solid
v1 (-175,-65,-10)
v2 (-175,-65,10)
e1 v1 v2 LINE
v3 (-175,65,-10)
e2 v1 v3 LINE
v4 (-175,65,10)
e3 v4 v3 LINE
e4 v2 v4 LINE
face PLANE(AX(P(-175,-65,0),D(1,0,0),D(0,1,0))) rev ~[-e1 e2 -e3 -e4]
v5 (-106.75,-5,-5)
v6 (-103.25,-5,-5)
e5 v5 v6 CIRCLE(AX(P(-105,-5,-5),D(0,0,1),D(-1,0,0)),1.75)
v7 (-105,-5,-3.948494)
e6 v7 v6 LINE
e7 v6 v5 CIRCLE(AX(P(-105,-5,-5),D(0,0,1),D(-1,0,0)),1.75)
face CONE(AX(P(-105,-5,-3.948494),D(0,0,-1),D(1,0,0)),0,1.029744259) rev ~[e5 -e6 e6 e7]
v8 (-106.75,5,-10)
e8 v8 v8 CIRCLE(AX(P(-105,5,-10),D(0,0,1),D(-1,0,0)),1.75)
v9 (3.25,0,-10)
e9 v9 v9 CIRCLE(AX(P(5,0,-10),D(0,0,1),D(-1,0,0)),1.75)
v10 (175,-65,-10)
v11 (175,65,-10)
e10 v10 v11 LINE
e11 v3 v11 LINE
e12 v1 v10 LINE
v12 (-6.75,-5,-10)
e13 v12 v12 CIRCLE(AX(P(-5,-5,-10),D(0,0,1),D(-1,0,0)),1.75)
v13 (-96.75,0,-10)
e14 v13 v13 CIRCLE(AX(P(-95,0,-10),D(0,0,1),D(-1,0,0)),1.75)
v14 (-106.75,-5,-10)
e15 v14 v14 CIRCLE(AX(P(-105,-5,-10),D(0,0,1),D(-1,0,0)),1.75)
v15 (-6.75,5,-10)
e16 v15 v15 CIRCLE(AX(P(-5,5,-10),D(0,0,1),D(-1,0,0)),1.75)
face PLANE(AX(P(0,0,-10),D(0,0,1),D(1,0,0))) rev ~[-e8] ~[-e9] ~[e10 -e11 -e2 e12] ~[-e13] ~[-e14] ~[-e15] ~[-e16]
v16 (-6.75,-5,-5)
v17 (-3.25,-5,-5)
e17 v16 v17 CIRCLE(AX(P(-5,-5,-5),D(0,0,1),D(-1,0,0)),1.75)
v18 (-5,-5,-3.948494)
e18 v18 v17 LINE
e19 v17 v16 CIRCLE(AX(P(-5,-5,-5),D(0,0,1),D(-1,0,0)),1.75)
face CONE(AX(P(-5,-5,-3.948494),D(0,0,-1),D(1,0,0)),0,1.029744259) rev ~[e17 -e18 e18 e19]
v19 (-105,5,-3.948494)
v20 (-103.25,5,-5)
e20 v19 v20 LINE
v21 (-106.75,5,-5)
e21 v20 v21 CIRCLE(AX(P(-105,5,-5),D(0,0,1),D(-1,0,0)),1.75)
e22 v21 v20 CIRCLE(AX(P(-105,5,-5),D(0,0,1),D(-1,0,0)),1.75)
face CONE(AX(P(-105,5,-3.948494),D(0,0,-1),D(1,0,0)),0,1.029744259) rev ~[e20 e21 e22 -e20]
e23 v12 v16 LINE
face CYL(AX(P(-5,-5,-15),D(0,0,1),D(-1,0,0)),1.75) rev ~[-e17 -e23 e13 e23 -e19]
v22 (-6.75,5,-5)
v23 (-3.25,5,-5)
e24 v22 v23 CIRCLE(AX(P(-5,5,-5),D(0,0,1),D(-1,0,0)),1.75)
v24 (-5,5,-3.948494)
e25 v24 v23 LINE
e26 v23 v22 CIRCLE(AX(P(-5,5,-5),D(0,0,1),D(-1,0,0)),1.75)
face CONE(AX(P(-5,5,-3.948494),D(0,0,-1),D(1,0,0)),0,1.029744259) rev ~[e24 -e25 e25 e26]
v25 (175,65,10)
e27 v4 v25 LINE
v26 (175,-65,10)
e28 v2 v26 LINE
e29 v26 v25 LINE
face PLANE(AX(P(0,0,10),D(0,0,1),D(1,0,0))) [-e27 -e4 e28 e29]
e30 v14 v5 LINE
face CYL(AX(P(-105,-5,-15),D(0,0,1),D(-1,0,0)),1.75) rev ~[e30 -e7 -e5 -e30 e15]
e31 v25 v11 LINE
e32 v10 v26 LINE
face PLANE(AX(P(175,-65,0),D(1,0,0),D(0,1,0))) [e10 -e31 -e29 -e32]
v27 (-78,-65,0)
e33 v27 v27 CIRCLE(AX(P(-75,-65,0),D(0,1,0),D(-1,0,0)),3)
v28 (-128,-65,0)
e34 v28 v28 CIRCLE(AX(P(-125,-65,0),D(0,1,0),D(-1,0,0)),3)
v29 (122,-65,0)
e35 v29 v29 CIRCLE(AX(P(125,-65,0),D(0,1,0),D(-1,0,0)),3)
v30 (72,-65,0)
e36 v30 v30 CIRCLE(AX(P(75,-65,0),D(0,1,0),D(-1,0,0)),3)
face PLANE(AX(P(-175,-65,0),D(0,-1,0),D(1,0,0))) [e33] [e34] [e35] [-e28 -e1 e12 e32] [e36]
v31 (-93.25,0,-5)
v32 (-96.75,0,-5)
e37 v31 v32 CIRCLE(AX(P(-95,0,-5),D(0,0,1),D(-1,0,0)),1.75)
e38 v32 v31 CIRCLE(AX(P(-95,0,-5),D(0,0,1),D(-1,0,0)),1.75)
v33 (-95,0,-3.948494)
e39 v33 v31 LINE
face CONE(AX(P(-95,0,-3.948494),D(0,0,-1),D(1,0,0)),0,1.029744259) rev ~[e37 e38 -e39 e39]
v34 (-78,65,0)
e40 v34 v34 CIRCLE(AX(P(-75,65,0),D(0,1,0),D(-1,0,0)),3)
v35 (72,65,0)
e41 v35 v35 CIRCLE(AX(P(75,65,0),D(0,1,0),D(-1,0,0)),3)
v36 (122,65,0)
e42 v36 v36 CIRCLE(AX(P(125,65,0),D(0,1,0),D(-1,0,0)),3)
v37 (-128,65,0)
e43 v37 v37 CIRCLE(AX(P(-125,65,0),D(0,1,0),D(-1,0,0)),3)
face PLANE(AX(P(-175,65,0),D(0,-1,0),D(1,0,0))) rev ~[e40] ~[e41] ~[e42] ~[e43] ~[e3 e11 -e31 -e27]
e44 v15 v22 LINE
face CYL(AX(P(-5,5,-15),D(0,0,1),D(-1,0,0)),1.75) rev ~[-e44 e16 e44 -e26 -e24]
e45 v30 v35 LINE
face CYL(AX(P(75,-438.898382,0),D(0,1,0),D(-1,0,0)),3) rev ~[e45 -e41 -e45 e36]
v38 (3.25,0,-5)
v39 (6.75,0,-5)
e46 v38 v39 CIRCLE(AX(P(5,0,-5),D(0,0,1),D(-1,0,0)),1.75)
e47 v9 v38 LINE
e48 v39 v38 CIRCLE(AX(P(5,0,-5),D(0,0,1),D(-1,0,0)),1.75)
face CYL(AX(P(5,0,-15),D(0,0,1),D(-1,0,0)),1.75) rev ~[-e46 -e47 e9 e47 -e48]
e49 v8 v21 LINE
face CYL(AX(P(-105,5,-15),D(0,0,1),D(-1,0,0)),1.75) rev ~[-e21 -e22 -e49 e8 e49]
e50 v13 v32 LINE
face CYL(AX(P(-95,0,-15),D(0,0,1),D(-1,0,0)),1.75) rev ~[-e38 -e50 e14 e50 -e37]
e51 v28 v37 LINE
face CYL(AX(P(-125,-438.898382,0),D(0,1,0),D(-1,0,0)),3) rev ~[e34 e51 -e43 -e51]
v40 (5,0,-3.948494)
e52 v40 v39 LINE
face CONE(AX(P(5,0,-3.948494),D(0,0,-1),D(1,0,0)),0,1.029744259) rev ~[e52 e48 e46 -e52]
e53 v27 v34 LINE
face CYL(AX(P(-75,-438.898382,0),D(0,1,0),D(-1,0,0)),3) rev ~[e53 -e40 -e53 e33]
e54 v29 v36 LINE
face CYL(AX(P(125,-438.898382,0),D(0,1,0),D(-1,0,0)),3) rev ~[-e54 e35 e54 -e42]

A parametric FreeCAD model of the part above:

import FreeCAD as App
import Part
import Sketcher


def add_polygon(sketch, points):
    """Adds a closed chain of lines whose ends are joined by coincident constraints."""
    first, n = sketch.GeometryCount, len(points)
    for a, b in zip(points, points[1:] + points[:1]):
        sketch.addGeometry(Part.LineSegment(App.Vector(*a, 0), App.Vector(*b, 0)), False)
    for i in range(n):
        sketch.addConstraint(Sketcher.Constraint("Coincident", first + i, 2, first + (i + 1) % n, 1))

doc = App.newDocument("Part")
body = doc.addObject("PartDesign::Body", "Body")

sketch1 = body.newObject("Sketcher::SketchObject", "Sketch")
sketch1.AttachmentSupport = (doc.getObject("XY_Plane"), [""])
sketch1.MapMode = "FlatFace"
add_polygon(sketch1, [(-175, 65), (-175, -65), (175, -65), (175, 65)])
sketch1.addConstraint([
    Sketcher.Constraint("Vertical", 0),
    Sketcher.Constraint("Horizontal", 1),
    Sketcher.Constraint("Vertical", 2),
    Sketcher.Constraint("Horizontal", 3),
    Sketcher.Constraint("Symmetric", 0, 2, 2, 2, -1, 1),
    Sketcher.Constraint("DistanceX", 1, 1, 1, 2, 350.0),
    Sketcher.Constraint("DistanceY", 0, 2, 0, 1, 130.0),
])
pad1 = body.newObject("PartDesign::Pad", "Pad")
pad1.Profile = sketch1
pad1.Length = 20
pad1.Midplane = True

sketch2 = body.newObject("Sketcher::SketchObject", "Sketch001")
sketch2.AttachmentSupport = (doc.getObject("XZ_Plane"), [""])
sketch2.MapMode = "FlatFace"
sketch2.AttachmentOffset = App.Placement(App.Vector(0, 0, 65), App.Rotation())
sketch2.addGeometry([
    Part.Circle(App.Vector(-125, 0, 0), App.Vector(0, 0, 1), 3),
    Part.Circle(App.Vector(-75, 0, 0), App.Vector(0, 0, 1), 3),
    Part.Circle(App.Vector(75, 0, 0), App.Vector(0, 0, 1), 3),
    Part.Circle(App.Vector(125, 0, 0), App.Vector(0, 0, 1), 3),
], False)
sketch2.addConstraint([
    Sketcher.Constraint("Equal", 0, 1),
    Sketcher.Constraint("Equal", 1, 2),
    Sketcher.Constraint("Equal", 2, 3),
    Sketcher.Constraint("Symmetric", 1, 3, 2, 3, -1, 1),
    Sketcher.Constraint("Symmetric", 0, 3, 3, 3, -1, 1),
    Sketcher.Constraint("PointOnObject", 0, 3, -1),
    Sketcher.Constraint("PointOnObject", 1, 3, -1),
    Sketcher.Constraint("Diameter", 0, 6.0),
    Sketcher.Constraint("DistanceX", 0, 3, -1, 1, 125.0),
    Sketcher.Constraint("DistanceX", 1, 3, -1, 1, 75.0),
])
doc.recompute()
hole = body.newObject("PartDesign::Hole", "Hole")
hole.Profile = sketch2
hole.ThreadType = "None"
hole.Diameter = 6
hole.DepthType = "ThroughAll"

sketch3 = body.newObject("Sketcher::SketchObject", "Sketch002")
sketch3.AttachmentSupport = (doc.getObject("XY_Plane"), [""])
sketch3.MapMode = "FlatFace"
sketch3.AttachmentOffset = App.Placement(App.Vector(0, 0, -10), App.Rotation())
sketch3.addGeometry([
    Part.Circle(App.Vector(-105, -5, 0), App.Vector(0, 0, 1), 1.8),
    Part.Circle(App.Vector(-105, 5, 0), App.Vector(0, 0, 1), 1.8),
    Part.Circle(App.Vector(-95, 0, 0), App.Vector(0, 0, 1), 1.8),
    Part.Circle(App.Vector(-5, -5, 0), App.Vector(0, 0, 1), 1.8),
    Part.Circle(App.Vector(-5, 5, 0), App.Vector(0, 0, 1), 1.8),
    Part.Circle(App.Vector(5, 0, 0), App.Vector(0, 0, 1), 1.8),
], False)
sketch3.addConstraint([
    Sketcher.Constraint("Equal", 0, 1),
    Sketcher.Constraint("Equal", 1, 2),
    Sketcher.Constraint("Equal", 2, 3),
    Sketcher.Constraint("Equal", 3, 4),
    Sketcher.Constraint("Equal", 4, 5),
    Sketcher.Constraint("Symmetric", 0, 3, 1, 3, -1),
    Sketcher.Constraint("Symmetric", 3, 3, 4, 3, -1),
    Sketcher.Constraint("PointOnObject", 2, 3, -1),
    Sketcher.Constraint("PointOnObject", 5, 3, -1),
    Sketcher.Constraint("Horizontal", 0, 3, 3, 3),
    Sketcher.Constraint("Diameter", 0, 3.5),
    Sketcher.Constraint("DistanceX", 0, 3, -1, 1, 105.0),
    Sketcher.Constraint("DistanceY", 0, 3, -1, 1, 5.0),
    Sketcher.Constraint("DistanceX", 2, 3, -1, 1, 95.0),
    Sketcher.Constraint("DistanceX", 3, 3, -1, 1, 5.0),
    Sketcher.Constraint("DistanceX", -1, 1, 5, 3, 5.0),
])
doc.recompute()
hole2 = body.newObject("PartDesign::Hole", "Hole001")
hole2.Profile = sketch3
hole2.ThreadType = "None"
hole2.Diameter = 3.5
hole2.DepthType = "Dimension"
hole2.Depth = 5
hole2.DrillPoint = "Angled"
hole2.DrillPointAngle = 118
hole2.Reversed = True

doc.recompute()
